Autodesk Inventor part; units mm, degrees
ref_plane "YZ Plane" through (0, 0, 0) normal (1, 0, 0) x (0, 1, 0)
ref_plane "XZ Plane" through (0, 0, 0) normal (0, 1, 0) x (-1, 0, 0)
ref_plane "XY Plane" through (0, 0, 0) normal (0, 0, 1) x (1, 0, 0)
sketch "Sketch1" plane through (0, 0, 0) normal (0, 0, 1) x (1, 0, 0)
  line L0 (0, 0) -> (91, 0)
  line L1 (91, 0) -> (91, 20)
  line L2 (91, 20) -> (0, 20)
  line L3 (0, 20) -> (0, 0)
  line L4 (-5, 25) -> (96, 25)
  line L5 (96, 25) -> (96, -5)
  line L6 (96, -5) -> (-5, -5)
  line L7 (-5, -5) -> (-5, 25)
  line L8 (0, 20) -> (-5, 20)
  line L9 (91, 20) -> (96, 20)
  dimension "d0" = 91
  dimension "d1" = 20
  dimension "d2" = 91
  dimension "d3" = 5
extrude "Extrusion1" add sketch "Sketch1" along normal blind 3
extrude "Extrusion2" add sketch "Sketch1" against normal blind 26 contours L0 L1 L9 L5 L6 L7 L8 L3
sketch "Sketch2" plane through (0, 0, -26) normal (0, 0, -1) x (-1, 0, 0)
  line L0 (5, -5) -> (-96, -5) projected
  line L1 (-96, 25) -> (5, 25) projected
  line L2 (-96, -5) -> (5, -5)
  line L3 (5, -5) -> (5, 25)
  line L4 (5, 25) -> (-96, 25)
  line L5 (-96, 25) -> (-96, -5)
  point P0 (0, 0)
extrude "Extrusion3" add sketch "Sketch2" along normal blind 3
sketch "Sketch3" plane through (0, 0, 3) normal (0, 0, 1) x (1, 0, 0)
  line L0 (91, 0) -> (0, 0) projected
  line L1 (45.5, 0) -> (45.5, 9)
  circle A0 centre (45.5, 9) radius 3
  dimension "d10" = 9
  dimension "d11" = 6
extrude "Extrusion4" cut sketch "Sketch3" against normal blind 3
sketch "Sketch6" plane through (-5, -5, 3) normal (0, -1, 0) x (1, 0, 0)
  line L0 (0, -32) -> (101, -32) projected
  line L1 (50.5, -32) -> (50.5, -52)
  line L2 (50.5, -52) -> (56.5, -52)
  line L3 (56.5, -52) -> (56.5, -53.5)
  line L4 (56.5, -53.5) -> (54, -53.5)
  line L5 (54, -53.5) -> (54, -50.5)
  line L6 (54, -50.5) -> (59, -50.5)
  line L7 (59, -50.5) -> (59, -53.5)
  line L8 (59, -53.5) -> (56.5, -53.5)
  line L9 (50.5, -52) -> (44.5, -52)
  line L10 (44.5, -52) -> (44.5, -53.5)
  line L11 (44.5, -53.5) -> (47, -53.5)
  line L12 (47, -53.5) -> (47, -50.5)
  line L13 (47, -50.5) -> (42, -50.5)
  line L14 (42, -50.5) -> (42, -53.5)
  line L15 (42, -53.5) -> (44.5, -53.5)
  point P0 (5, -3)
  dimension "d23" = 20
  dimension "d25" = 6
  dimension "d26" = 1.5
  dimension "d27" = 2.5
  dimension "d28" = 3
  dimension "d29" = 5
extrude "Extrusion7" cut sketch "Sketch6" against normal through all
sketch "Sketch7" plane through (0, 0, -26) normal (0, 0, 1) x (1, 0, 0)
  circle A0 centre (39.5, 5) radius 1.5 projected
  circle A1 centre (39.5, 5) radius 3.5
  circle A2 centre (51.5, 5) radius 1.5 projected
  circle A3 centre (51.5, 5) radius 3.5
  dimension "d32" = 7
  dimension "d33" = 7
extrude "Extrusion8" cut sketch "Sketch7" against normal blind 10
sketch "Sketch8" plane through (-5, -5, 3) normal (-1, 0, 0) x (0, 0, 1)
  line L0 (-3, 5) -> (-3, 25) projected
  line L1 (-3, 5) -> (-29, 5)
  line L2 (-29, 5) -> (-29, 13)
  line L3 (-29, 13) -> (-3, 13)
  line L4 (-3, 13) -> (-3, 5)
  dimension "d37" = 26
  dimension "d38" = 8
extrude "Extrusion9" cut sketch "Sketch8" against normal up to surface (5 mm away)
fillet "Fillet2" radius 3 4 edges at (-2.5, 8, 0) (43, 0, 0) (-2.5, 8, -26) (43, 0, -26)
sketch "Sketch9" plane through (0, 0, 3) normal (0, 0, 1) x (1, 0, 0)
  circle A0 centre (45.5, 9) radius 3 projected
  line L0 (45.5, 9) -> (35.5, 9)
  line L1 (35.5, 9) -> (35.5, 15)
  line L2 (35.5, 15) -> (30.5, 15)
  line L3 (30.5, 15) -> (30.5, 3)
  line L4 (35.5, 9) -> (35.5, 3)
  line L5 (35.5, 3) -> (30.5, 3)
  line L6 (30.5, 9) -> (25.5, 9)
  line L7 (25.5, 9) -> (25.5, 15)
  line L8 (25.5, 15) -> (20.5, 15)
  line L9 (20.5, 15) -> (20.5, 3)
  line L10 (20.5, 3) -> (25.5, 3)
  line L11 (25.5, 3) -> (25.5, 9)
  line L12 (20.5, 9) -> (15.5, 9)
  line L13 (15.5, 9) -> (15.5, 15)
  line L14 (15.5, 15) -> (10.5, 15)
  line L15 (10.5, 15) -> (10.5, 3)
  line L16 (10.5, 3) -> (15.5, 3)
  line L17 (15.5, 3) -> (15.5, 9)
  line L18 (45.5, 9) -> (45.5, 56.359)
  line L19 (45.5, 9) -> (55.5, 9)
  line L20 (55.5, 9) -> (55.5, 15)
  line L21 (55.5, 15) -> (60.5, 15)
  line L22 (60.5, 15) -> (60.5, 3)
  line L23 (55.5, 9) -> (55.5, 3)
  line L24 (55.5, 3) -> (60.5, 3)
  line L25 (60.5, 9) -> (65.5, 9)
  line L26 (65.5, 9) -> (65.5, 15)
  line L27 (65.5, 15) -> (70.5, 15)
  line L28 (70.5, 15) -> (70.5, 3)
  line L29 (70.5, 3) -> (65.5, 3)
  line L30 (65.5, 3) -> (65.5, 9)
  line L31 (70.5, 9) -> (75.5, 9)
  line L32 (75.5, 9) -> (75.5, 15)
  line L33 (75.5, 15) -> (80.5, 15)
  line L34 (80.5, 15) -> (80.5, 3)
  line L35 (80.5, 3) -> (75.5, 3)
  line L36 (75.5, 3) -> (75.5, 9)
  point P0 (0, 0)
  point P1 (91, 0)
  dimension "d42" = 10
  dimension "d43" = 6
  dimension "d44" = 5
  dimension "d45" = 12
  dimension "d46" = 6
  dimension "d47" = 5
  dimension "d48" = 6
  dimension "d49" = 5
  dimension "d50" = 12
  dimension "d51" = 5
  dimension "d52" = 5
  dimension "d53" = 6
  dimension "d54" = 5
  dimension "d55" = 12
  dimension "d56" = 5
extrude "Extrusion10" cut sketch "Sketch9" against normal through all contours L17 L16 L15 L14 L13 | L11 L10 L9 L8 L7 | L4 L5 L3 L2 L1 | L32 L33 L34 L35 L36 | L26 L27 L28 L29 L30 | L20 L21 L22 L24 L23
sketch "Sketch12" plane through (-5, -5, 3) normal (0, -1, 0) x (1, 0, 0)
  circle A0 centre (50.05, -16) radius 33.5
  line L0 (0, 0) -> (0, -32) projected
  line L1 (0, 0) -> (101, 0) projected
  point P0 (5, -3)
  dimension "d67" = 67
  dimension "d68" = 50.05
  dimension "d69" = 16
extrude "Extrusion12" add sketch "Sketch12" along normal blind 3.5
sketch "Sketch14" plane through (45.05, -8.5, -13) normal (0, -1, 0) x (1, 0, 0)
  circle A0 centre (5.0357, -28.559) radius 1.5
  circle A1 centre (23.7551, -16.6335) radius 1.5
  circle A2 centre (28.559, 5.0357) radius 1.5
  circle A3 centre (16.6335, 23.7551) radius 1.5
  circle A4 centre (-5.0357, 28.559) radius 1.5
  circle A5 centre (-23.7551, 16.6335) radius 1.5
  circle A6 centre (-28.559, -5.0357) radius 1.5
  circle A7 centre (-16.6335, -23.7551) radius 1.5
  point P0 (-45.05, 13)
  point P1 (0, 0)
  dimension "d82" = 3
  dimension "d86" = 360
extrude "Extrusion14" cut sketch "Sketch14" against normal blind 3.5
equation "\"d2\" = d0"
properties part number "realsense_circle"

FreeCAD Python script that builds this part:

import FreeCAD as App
import Part
import Sketcher
from FreeCAD import Vector


def edges_at(feature, points):
    """Names of the edges that pass closest to the given points."""
    edges = feature.Shape.Edges
    near = lambda p: min(range(len(edges)), key=lambda i: edges[i].distToShape(Part.Vertex(*p))[0])
    return sorted({f"Edge{near(p) + 1}" for p in points})

doc = App.newDocument("Part")
body = doc.addObject("PartDesign::Body", "Body")
body.AllowCompound = True

# Sketch on XY plane
sketch1 = body.newObject("Sketcher::SketchObject", "Sketch")
sketch1.AttachmentSupport = (doc.getObject("XY_Plane"), [""])
sketch1.MapMode = "FlatFace"
sketch1.addGeometry(Part.LineSegment(Vector(-5, -5, 0), Vector(96, -5, 0)), False)
sketch1.addGeometry(Part.LineSegment(Vector(96, -5, 0), Vector(96, 25, 0)), False)
sketch1.addGeometry(Part.LineSegment(Vector(96, 25, 0), Vector(-5, 25, 0)), False)
sketch1.addGeometry(Part.LineSegment(Vector(-5, 25, 0), Vector(-5, -5, 0)), False)
sketch1.addConstraint(Sketcher.Constraint("Coincident", 0, 2, 1, 1))
sketch1.addConstraint(Sketcher.Constraint("Coincident", 1, 2, 2, 1))
sketch1.addConstraint(Sketcher.Constraint("Coincident", 2, 2, 3, 1))
sketch1.addConstraint(Sketcher.Constraint("Coincident", 3, 2, 0, 1))
sketch1.addConstraint(Sketcher.Constraint("Horizontal", 0))
sketch1.addConstraint(Sketcher.Constraint("Vertical", 1))
sketch1.addConstraint(Sketcher.Constraint("Horizontal", 2))
sketch1.addConstraint(Sketcher.Constraint("Vertical", 3))
sketch1.addConstraint(Sketcher.Constraint("DistanceY", 0, 2, -1, 1, 5.0))
sketch1.addConstraint(Sketcher.Constraint("DistanceX", 2, 2, -1, 1, 5.0))
sketch1.addConstraint(Sketcher.Constraint("DistanceX", 0, 1, 0, 2, 101.0))
sketch1.addConstraint(Sketcher.Constraint("DistanceY", 1, 1, 1, 2, 30.0))
pad1 = body.newObject("PartDesign::Pad", "Pad")
pad1.Profile = sketch1
pad1.Length = 3

# Sketch on XY plane
sketch2 = body.newObject("Sketcher::SketchObject", "Sketch001")
sketch2.AttachmentSupport = (doc.getObject("XY_Plane"), [""])
sketch2.MapMode = "FlatFace"
sketch2.addGeometry(Part.LineSegment(Vector(91, 0, 0), Vector(0, 0, 0)), False)
sketch2.addGeometry(Part.LineSegment(Vector(0, 0, 0), Vector(0, 20, 0)), False)
sketch2.addGeometry(Part.LineSegment(Vector(0, 20, 0), Vector(-5, 20, 0)), False)
sketch2.addGeometry(Part.LineSegment(Vector(-5, 20, 0), Vector(-5, -5, 0)), False)
sketch2.addGeometry(Part.LineSegment(Vector(-5, -5, 0), Vector(96, -5, 0)), False)
sketch2.addGeometry(Part.LineSegment(Vector(96, -5, 0), Vector(96, 20, 0)), False)
sketch2.addGeometry(Part.LineSegment(Vector(96, 20, 0), Vector(91, 20, 0)), False)
sketch2.addGeometry(Part.LineSegment(Vector(91, 20, 0), Vector(91, 0, 0)), False)
sketch2.addConstraint(Sketcher.Constraint("Coincident", 0, 2, 1, 1))
sketch2.addConstraint(Sketcher.Constraint("Coincident", 1, 2, 2, 1))
sketch2.addConstraint(Sketcher.Constraint("Coincident", 2, 2, 3, 1))
sketch2.addConstraint(Sketcher.Constraint("Coincident", 3, 2, 4, 1))
sketch2.addConstraint(Sketcher.Constraint("Coincident", 4, 2, 5, 1))
sketch2.addConstraint(Sketcher.Constraint("Coincident", 5, 2, 6, 1))
sketch2.addConstraint(Sketcher.Constraint("Coincident", 6, 2, 7, 1))
sketch2.addConstraint(Sketcher.Constraint("Coincident", 7, 2, 0, 1))
sketch2.addConstraint(Sketcher.Constraint("Horizontal", 0))
sketch2.addConstraint(Sketcher.Constraint("Vertical", 1))
sketch2.addConstraint(Sketcher.Constraint("Horizontal", 2))
sketch2.addConstraint(Sketcher.Constraint("Vertical", 3))
sketch2.addConstraint(Sketcher.Constraint("Horizontal", 4))
sketch2.addConstraint(Sketcher.Constraint("Vertical", 5))
sketch2.addConstraint(Sketcher.Constraint("Horizontal", 6))
sketch2.addConstraint(Sketcher.Constraint("Vertical", 7))
sketch2.addConstraint(Sketcher.Constraint("Coincident", 0, 2, -1, 1))
sketch2.addConstraint(Sketcher.Constraint("Horizontal", 2, 2, 5, 2))
sketch2.addConstraint(Sketcher.Constraint("Equal", 2, 6))
sketch2.addConstraint(Sketcher.Constraint("DistanceX", 0, 2, 0, 1, 91.0))
sketch2.addConstraint(Sketcher.Constraint("DistanceX", 2, 2, 2, 1, 5.0))
sketch2.addConstraint(Sketcher.Constraint("DistanceY", 1, 1, 1, 2, 20.0))
sketch2.addConstraint(Sketcher.Constraint("DistanceY", 3, 2, -1, 1, 5.0))
pad2 = body.newObject("PartDesign::Pad", "Pad001")
pad2.Profile = sketch2
pad2.Length = 26
pad2.Reversed = True

# Sketch on XY plane
sketch3 = body.newObject("Sketcher::SketchObject", "Sketch002")
sketch3.AttachmentSupport = (doc.getObject("XY_Plane"), [""])
sketch3.MapMode = "FlatFace"
sketch3.AttachmentOffset = App.Placement(Vector(0, 0, -26), App.Rotation())
sketch3.addGeometry(Part.LineSegment(Vector(96, -5, 0), Vector(-5, -5, 0)), False)
sketch3.addGeometry(Part.LineSegment(Vector(-5, -5, 0), Vector(-5, 25, 0)), False)
sketch3.addGeometry(Part.LineSegment(Vector(-5, 25, 0), Vector(96, 25, 0)), False)
sketch3.addGeometry(Part.LineSegment(Vector(96, 25, 0), Vector(96, -5, 0)), False)
sketch3.addConstraint(Sketcher.Constraint("Coincident", 0, 2, 1, 1))
sketch3.addConstraint(Sketcher.Constraint("Coincident", 1, 2, 2, 1))
sketch3.addConstraint(Sketcher.Constraint("Coincident", 2, 2, 3, 1))
sketch3.addConstraint(Sketcher.Constraint("Coincident", 3, 2, 0, 1))
sketch3.addConstraint(Sketcher.Constraint("Horizontal", 0))
sketch3.addConstraint(Sketcher.Constraint("Vertical", 1))
sketch3.addConstraint(Sketcher.Constraint("Horizontal", 2))
sketch3.addConstraint(Sketcher.Constraint("Vertical", 3))
sketch3.addConstraint(Sketcher.Constraint("DistanceX", 0, 2, 0, 1, 101.0))
sketch3.addConstraint(Sketcher.Constraint("DistanceY", 1, 1, 1, 2, 30.0))
sketch3.addConstraint(Sketcher.Constraint("DistanceX", 0, 2, -1, 1, 5.0))
sketch3.addConstraint(Sketcher.Constraint("DistanceY", 0, 2, -1, 1, 5.0))
pad3 = body.newObject("PartDesign::Pad", "Pad002")
pad3.Profile = sketch3
pad3.Length = 3
pad3.Reversed = True

# Sketch on XY plane
sketch4 = body.newObject("Sketcher::SketchObject", "Sketch003")
sketch4.AttachmentSupport = (doc.getObject("XY_Plane"), [""])
sketch4.MapMode = "FlatFace"
sketch4.AttachmentOffset = App.Placement(Vector(0, 0, 3), App.Rotation())
sketch4.addGeometry(Part.Circle(Vector(45.5, 9, 0), Vector(0, 0, 1), 3), False)
sketch4.addConstraint(Sketcher.Constraint("Diameter", 0, 6.0))
sketch4.addConstraint(Sketcher.Constraint("DistanceY", -1, 1, 0, 3, 9.0))
sketch4.addConstraint(Sketcher.Constraint("DistanceX", -1, 1, 0, 3, 45.5))
pocket1 = body.newObject("PartDesign::Pocket", "Pocket")
pocket1.Profile = sketch4
pocket1.Length = 3

# Sketch on XZ plane
sketch5 = body.newObject("Sketcher::SketchObject", "Sketch004")
sketch5.AttachmentSupport = (doc.getObject("XZ_Plane"), [""])
sketch5.MapMode = "FlatFace"
sketch5.AttachmentOffset = App.Placement(Vector(0, 0, 5), App.Rotation())
sketch5.addGeometry(Part.LineSegment(Vector(49, -47.5, 0), Vector(49, -50.5, 0)), False)
sketch5.addGeometry(Part.LineSegment(Vector(49, -50.5, 0), Vector(54, -50.5, 0)), False)
sketch5.addGeometry(Part.LineSegment(Vector(54, -50.5, 0), Vector(54, -47.5, 0)), False)
sketch5.addGeometry(Part.LineSegment(Vector(54, -47.5, 0), Vector(49, -47.5, 0)), False)
sketch5.addGeometry(Part.LineSegment(Vector(42, -50.5, 0), Vector(42, -47.5, 0)), False)
sketch5.addGeometry(Part.LineSegment(Vector(42, -47.5, 0), Vector(37, -47.5, 0)), False)
sketch5.addGeometry(Part.LineSegment(Vector(37, -47.5, 0), Vector(37, -50.5, 0)), False)
sketch5.addGeometry(Part.LineSegment(Vector(37, -50.5, 0), Vector(42, -50.5, 0)), False)
sketch5.addConstraint(Sketcher.Constraint("Coincident", 0, 2, 1, 1))
sketch5.addConstraint(Sketcher.Constraint("Coincident", 1, 2, 2, 1))
sketch5.addConstraint(Sketcher.Constraint("Coincident", 2, 2, 3, 1))
sketch5.addConstraint(Sketcher.Constraint("Coincident", 3, 2, 0, 1))
sketch5.addConstraint(Sketcher.Constraint("Coincident", 4, 2, 5, 1))
sketch5.addConstraint(Sketcher.Constraint("Coincident", 5, 2, 6, 1))
sketch5.addConstraint(Sketcher.Constraint("Coincident", 6, 2, 7, 1))
sketch5.addConstraint(Sketcher.Constraint("Coincident", 7, 2, 4, 1))
sketch5.addConstraint(Sketcher.Constraint("Vertical", 0))
sketch5.addConstraint(Sketcher.Constraint("Horizontal", 1))
sketch5.addConstraint(Sketcher.Constraint("Vertical", 2))
sketch5.addConstraint(Sketcher.Constraint("Horizontal", 3))
sketch5.addConstraint(Sketcher.Constraint("Vertical", 4))
sketch5.addConstraint(Sketcher.Constraint("Horizontal", 5))
sketch5.addConstraint(Sketcher.Constraint("Vertical", 6))
sketch5.addConstraint(Sketcher.Constraint("Horizontal", 7))
sketch5.addConstraint(Sketcher.Constraint("Horizontal", 3, 2, 4, 2))
sketch5.addConstraint(Sketcher.Constraint("Horizontal", 1, 2, 6, 2))
sketch5.addConstraint(Sketcher.Constraint("Equal", 3, 5))
sketch5.addConstraint(Sketcher.Constraint("DistanceX", 1, 1, 1, 2, 5.0))
sketch5.addConstraint(Sketcher.Constraint("DistanceY", 0, 2, 0, 1, 3.0))
sketch5.addConstraint(Sketcher.Constraint("DistanceX", -1, 1, 0, 2, 49.0))
sketch5.addConstraint(Sketcher.Constraint("DistanceX", -1, 1, 4, 2, 42.0))
sketch5.addConstraint(Sketcher.Constraint("DistanceY", 0, 2, -1, 1, 50.5))
pocket2 = body.newObject("PartDesign::Pocket", "Pocket001")
pocket2.Profile = sketch5
pocket2.Type = "ThroughAll"

# Sketch on XY plane
sketch6 = body.newObject("Sketcher::SketchObject", "Sketch005")
sketch6.AttachmentSupport = (doc.getObject("XY_Plane"), [""])
sketch6.MapMode = "FlatFace"
sketch6.AttachmentOffset = App.Placement(Vector(0, 0, -26), App.Rotation())
sketch6.addGeometry(Part.Circle(Vector(39.5, 5, 0), Vector(0, 0, 1), 3.5), False)
sketch6.addGeometry(Part.Circle(Vector(39.5, 5, 0), Vector(0, 0, 1), 1.5), False)
sketch6.addGeometry(Part.Circle(Vector(51.5, 5, 0), Vector(0, 0, 1), 3.5), False)
sketch6.addGeometry(Part.Circle(Vector(51.5, 5, 0), Vector(0, 0, 1), 1.5), False)
sketch6.addConstraint(Sketcher.Constraint("Coincident", 1, 3, 0, 3))
sketch6.addConstraint(Sketcher.Constraint("Coincident", 3, 3, 2, 3))
sketch6.addConstraint(Sketcher.Constraint("Equal", 0, 2))
sketch6.addConstraint(Sketcher.Constraint("Equal", 1, 3))
sketch6.addConstraint(Sketcher.Constraint("Horizontal", 1, 3, 2, 3))
sketch6.addConstraint(Sketcher.Constraint("Diameter", 0, 7.0))
sketch6.addConstraint(Sketcher.Constraint("Diameter", 1, 3.0))
sketch6.addConstraint(Sketcher.Constraint("DistanceY", -1, 1, 0, 3, 5.0))
sketch6.addConstraint(Sketcher.Constraint("DistanceX", 0, 3, 2, 3, 12.0))
sketch6.addConstraint(Sketcher.Constraint("DistanceX", -1, 1, 0, 3, 39.5))
pocket3 = body.newObject("PartDesign::Pocket", "Pocket002")
pocket3.Profile = sketch6
pocket3.Length = 10

# Sketch on YZ plane
sketch7 = body.newObject("Sketcher::SketchObject", "Sketch006")
sketch7.AttachmentSupport = (doc.getObject("YZ_Plane"), [""])
sketch7.MapMode = "FlatFace"
sketch7.AttachmentOffset = App.Placement(Vector(0, 0, -5), App.Rotation())
sketch7.addGeometry(Part.LineSegment(Vector(0, -26, 0), Vector(0, 0, 0)), False)
sketch7.addGeometry(Part.LineSegment(Vector(0, 0, 0), Vector(8, 0, 0)), False)
sketch7.addGeometry(Part.LineSegment(Vector(8, 0, 0), Vector(8, -26, 0)), False)
sketch7.addGeometry(Part.LineSegment(Vector(8, -26, 0), Vector(0, -26, 0)), False)
sketch7.addConstraint(Sketcher.Constraint("Coincident", 0, 2, 1, 1))
sketch7.addConstraint(Sketcher.Constraint("Coincident", 1, 2, 2, 1))
sketch7.addConstraint(Sketcher.Constraint("Coincident", 2, 2, 3, 1))
sketch7.addConstraint(Sketcher.Constraint("Coincident", 3, 2, 0, 1))
sketch7.addConstraint(Sketcher.Constraint("Vertical", 0))
sketch7.addConstraint(Sketcher.Constraint("Horizontal", 1))
sketch7.addConstraint(Sketcher.Constraint("Vertical", 2))
sketch7.addConstraint(Sketcher.Constraint("Horizontal", 3))
sketch7.addConstraint(Sketcher.Constraint("Coincident", 0, 2, -1, 1))
sketch7.addConstraint(Sketcher.Constraint("DistanceX", 1, 1, 1, 2, 8.0))
sketch7.addConstraint(Sketcher.Constraint("DistanceY", 0, 1, 0, 2, 26.0))
pocket4 = body.newObject("PartDesign::Pocket", "Pocket003")
pocket4.Profile = sketch7
pocket4.Length = 5
pocket4.Reversed = True
doc.recompute()

fillet = body.newObject("PartDesign::Fillet", "Fillet")
fillet.Base = (pocket4, edges_at(pocket4, [
    (-2.5, 8, 0),
    (43, 0, 0),
    (-2.5, 8, -26),
    (43, 0, -26),
]))
fillet.Radius = 3

# Sketch on XY plane
sketch8 = body.newObject("Sketcher::SketchObject", "Sketch007")
sketch8.AttachmentSupport = (doc.getObject("XY_Plane"), [""])
sketch8.MapMode = "FlatFace"
sketch8.AttachmentOffset = App.Placement(Vector(0, 0, 3), App.Rotation())
sketch8.addGeometry(Part.LineSegment(Vector(16, 3, 0), Vector(16, 15, 0)), False)
sketch8.addGeometry(Part.LineSegment(Vector(16, 15, 0), Vector(10, 15, 0)), False)
sketch8.addGeometry(Part.LineSegment(Vector(10, 15, 0), Vector(10, 3, 0)), False)
sketch8.addGeometry(Part.LineSegment(Vector(10, 3, 0), Vector(16, 3, 0)), False)
sketch8.addGeometry(Part.LineSegment(Vector(26, 3, 0), Vector(26, 15, 0)), False)
sketch8.addGeometry(Part.LineSegment(Vector(26, 15, 0), Vector(20, 15, 0)), False)
sketch8.addGeometry(Part.LineSegment(Vector(20, 15, 0), Vector(20, 3, 0)), False)
sketch8.addGeometry(Part.LineSegment(Vector(20, 3, 0), Vector(26, 3, 0)), False)
sketch8.addGeometry(Part.LineSegment(Vector(36, 3, 0), Vector(36, 15, 0)), False)
sketch8.addGeometry(Part.LineSegment(Vector(36, 15, 0), Vector(30, 15, 0)), False)
sketch8.addGeometry(Part.LineSegment(Vector(30, 15, 0), Vector(30, 3, 0)), False)
sketch8.addGeometry(Part.LineSegment(Vector(30, 3, 0), Vector(36, 3, 0)), False)
sketch8.addGeometry(Part.LineSegment(Vector(76, 15, 0), Vector(76, 3, 0)), False)
sketch8.addGeometry(Part.LineSegment(Vector(76, 3, 0), Vector(80, 3, 0)), False)
sketch8.addGeometry(Part.LineSegment(Vector(80, 3, 0), Vector(80, 15, 0)), False)
sketch8.addGeometry(Part.LineSegment(Vector(80, 15, 0), Vector(76, 15, 0)), False)
sketch8.addGeometry(Part.LineSegment(Vector(66, 15, 0), Vector(66, 3, 0)), False)
sketch8.addGeometry(Part.LineSegment(Vector(66, 3, 0), Vector(70, 3, 0)), False)
sketch8.addGeometry(Part.LineSegment(Vector(70, 3, 0), Vector(70, 15, 0)), False)
sketch8.addGeometry(Part.LineSegment(Vector(70, 15, 0), Vector(66, 15, 0)), False)
sketch8.addGeometry(Part.LineSegment(Vector(56, 15, 0), Vector(56, 3, 0)), False)
sketch8.addGeometry(Part.LineSegment(Vector(56, 3, 0), Vector(60, 3, 0)), False)
sketch8.addGeometry(Part.LineSegment(Vector(60, 3, 0), Vector(60, 15, 0)), False)
sketch8.addGeometry(Part.LineSegment(Vector(60, 15, 0), Vector(56, 15, 0)), False)
sketch8.addConstraint(Sketcher.Constraint("Coincident", 0, 2, 1, 1))
sketch8.addConstraint(Sketcher.Constraint("Coincident", 1, 2, 2, 1))
sketch8.addConstraint(Sketcher.Constraint("Coincident", 2, 2, 3, 1))
sketch8.addConstraint(Sketcher.Constraint("Coincident", 3, 2, 0, 1))
sketch8.addConstraint(Sketcher.Constraint("Coincident", 4, 2, 5, 1))
sketch8.addConstraint(Sketcher.Constraint("Coincident", 5, 2, 6, 1))
sketch8.addConstraint(Sketcher.Constraint("Coincident", 6, 2, 7, 1))
sketch8.addConstraint(Sketcher.Constraint("Coincident", 7, 2, 4, 1))
sketch8.addConstraint(Sketcher.Constraint("Coincident", 8, 2, 9, 1))
sketch8.addConstraint(Sketcher.Constraint("Coincident", 9, 2, 10, 1))
sketch8.addConstraint(Sketcher.Constraint("Coincident", 10, 2, 11, 1))
sketch8.addConstraint(Sketcher.Constraint("Coincident", 11, 2, 8, 1))
sketch8.addConstraint(Sketcher.Constraint("Coincident", 12, 2, 13, 1))
sketch8.addConstraint(Sketcher.Constraint("Coincident", 13, 2, 14, 1))
sketch8.addConstraint(Sketcher.Constraint("Coincident", 14, 2, 15, 1))
sketch8.addConstraint(Sketcher.Constraint("Coincident", 15, 2, 12, 1))
sketch8.addConstraint(Sketcher.Constraint("Coincident", 16, 2, 17, 1))
sketch8.addConstraint(Sketcher.Constraint("Coincident", 17, 2, 18, 1))
sketch8.addConstraint(Sketcher.Constraint("Coincident", 18, 2, 19, 1))
sketch8.addConstraint(Sketcher.Constraint("Coincident", 19, 2, 16, 1))
sketch8.addConstraint(Sketcher.Constraint("Coincident", 20, 2, 21, 1))
sketch8.addConstraint(Sketcher.Constraint("Coincident", 21, 2, 22, 1))
sketch8.addConstraint(Sketcher.Constraint("Coincident", 22, 2, 23, 1))
sketch8.addConstraint(Sketcher.Constraint("Coincident", 23, 2, 20, 1))
sketch8.addConstraint(Sketcher.Constraint("Vertical", 0))
sketch8.addConstraint(Sketcher.Constraint("Horizontal", 1))
sketch8.addConstraint(Sketcher.Constraint("Vertical", 2))
sketch8.addConstraint(Sketcher.Constraint("Horizontal", 3))
sketch8.addConstraint(Sketcher.Constraint("Vertical", 4))
sketch8.addConstraint(Sketcher.Constraint("Horizontal", 5))
sketch8.addConstraint(Sketcher.Constraint("Vertical", 6))
sketch8.addConstraint(Sketcher.Constraint("Horizontal", 7))
sketch8.addConstraint(Sketcher.Constraint("Vertical", 8))
sketch8.addConstraint(Sketcher.Constraint("Horizontal", 9))
sketch8.addConstraint(Sketcher.Constraint("Vertical", 10))
sketch8.addConstraint(Sketcher.Constraint("Horizontal", 11))
sketch8.addConstraint(Sketcher.Constraint("Vertical", 12))
sketch8.addConstraint(Sketcher.Constraint("Horizontal", 13))
sketch8.addConstraint(Sketcher.Constraint("Vertical", 14))
sketch8.addConstraint(Sketcher.Constraint("Horizontal", 15))
sketch8.addConstraint(Sketcher.Constraint("Vertical", 16))
sketch8.addConstraint(Sketcher.Constraint("Horizontal", 17))
sketch8.addConstraint(Sketcher.Constraint("Vertical", 18))
sketch8.addConstraint(Sketcher.Constraint("Horizontal", 19))
sketch8.addConstraint(Sketcher.Constraint("Vertical", 20))
sketch8.addConstraint(Sketcher.Constraint("Horizontal", 21))
sketch8.addConstraint(Sketcher.Constraint("Vertical", 22))
sketch8.addConstraint(Sketcher.Constraint("Horizontal", 23))
sketch8.addConstraint(Sketcher.Constraint("Horizontal", 1, 2, 4, 2))
sketch8.addConstraint(Sketcher.Constraint("Horizontal", 3, 2, 6, 2))
sketch8.addConstraint(Sketcher.Constraint("Horizontal", 5, 2, 8, 2))
sketch8.addConstraint(Sketcher.Constraint("Horizontal", 7, 2, 10, 2))
sketch8.addConstraint(Sketcher.Constraint("Horizontal", 11, 2, 12, 2))
sketch8.addConstraint(Sketcher.Constraint("Horizontal", 9, 2, 14, 2))
sketch8.addConstraint(Sketcher.Constraint("Horizontal", 13, 2, 16, 2))
sketch8.addConstraint(Sketcher.Constraint("Horizontal", 15, 2, 18, 2))
sketch8.addConstraint(Sketcher.Constraint("Horizontal", 17, 2, 20, 2))
sketch8.addConstraint(Sketcher.Constraint("Horizontal", 19, 2, 22, 2))
sketch8.addConstraint(Sketcher.Constraint("Equal", 3, 5))
sketch8.addConstraint(Sketcher.Constraint("Equal", 7, 9))
sketch8.addConstraint(Sketcher.Constraint("Equal", 11, 13))
sketch8.addConstraint(Sketcher.Constraint("Equal", 15, 17))
sketch8.addConstraint(Sketcher.Constraint("Equal", 19, 21))
sketch8.addConstraint(Sketcher.Constraint("DistanceX", 1, 2, 1, 1, 5.0))
sketch8.addConstraint(Sketcher.Constraint("DistanceY", 0, 1, 0, 2, 12.0))
sketch8.addConstraint(Sketcher.Constraint("DistanceX", 0, 2, 4, 2, 10.0))
sketch8.addConstraint(Sketcher.Constraint("DistanceX", 4, 2, 8, 2, 10.0))
sketch8.addConstraint(Sketcher.Constraint("DistanceX", 16, 2, 12, 2, 10.0))
sketch8.addConstraint(Sketcher.Constraint("DistanceX", 20, 2, 16, 2, 10.0))
sketch8.addConstraint(Sketcher.Constraint("DistanceY", -1, 1, 0, 2, 15.0))
sketch8.addConstraint(Sketcher.Constraint("DistanceX", 11, 2, 12, 2, 40.0))
sketch8.addConstraint(Sketcher.Constraint("DistanceX", -1, 1, 0, 2, 15.5))
pocket5 = body.newObject("PartDesign::Pocket", "Pocket004")
pocket5.Profile = sketch8
pocket5.Type = "ThroughAll"

# Sketch on XZ plane
sketch9 = body.newObject("Sketcher::SketchObject", "Sketch008")
sketch9.AttachmentSupport = (doc.getObject("XZ_Plane"), [""])
sketch9.MapMode = "FlatFace"
sketch9.AttachmentOffset = App.Placement(Vector(0, 0, 5), App.Rotation())
sketch9.addGeometry(Part.Circle(Vector(45, -13, 0), Vector(0, 0, 1), 34), False)
sketch9.addConstraint(Sketcher.Constraint("Diameter", 0, 67.0))
sketch9.addConstraint(Sketcher.Constraint("DistanceY", 0, 3, -1, 1, 13.0))
sketch9.addConstraint(Sketcher.Constraint("DistanceX", -1, 1, 0, 3, 45.05))
pad4 = body.newObject("PartDesign::Pad", "Pad003")
pad4.Profile = sketch9
pad4.Length = 3.5

# Sketch on XZ plane
sketch10 = body.newObject("Sketcher::SketchObject", "Sketch009")
sketch10.AttachmentSupport = (doc.getObject("XZ_Plane"), [""])
sketch10.MapMode = "FlatFace"
sketch10.AttachmentOffset = App.Placement(Vector(0, 0, 8.5), App.Rotation())
sketch10.addGeometry(Part.Circle(Vector(50.1, -41.6, 0), Vector(0, 0, 1), 1.5), False)
sketch10.addGeometry(Part.Circle(Vector(68.8, -29.6, 0), Vector(0, 0, 1), 1.5), False)
sketch10.addGeometry(Part.Circle(Vector(73.6, -8, 0), Vector(0, 0, 1), 1.5), False)
sketch10.addGeometry(Part.Circle(Vector(61.7, 10.8, 0), Vector(0, 0, 1), 1.5), False)
sketch10.addGeometry(Part.Circle(Vector(40, 15.6, 0), Vector(0, 0, 1), 1.5), False)
sketch10.addGeometry(Part.Circle(Vector(21.3, 3.6, 0), Vector(0, 0, 1), 1.5), False)
sketch10.addGeometry(Part.Circle(Vector(16.5, -18, 0), Vector(0, 0, 1), 1.5), False)
sketch10.addGeometry(Part.Circle(Vector(28.4, -36.8, 0), Vector(0, 0, 1), 1.5), False)
sketch10.addConstraint(Sketcher.Constraint("Equal", 0, 1))
sketch10.addConstraint(Sketcher.Constraint("Equal", 1, 2))
sketch10.addConstraint(Sketcher.Constraint("Equal", 2, 3))
sketch10.addConstraint(Sketcher.Constraint("Equal", 3, 4))
sketch10.addConstraint(Sketcher.Constraint("Equal", 4, 5))
sketch10.addConstraint(Sketcher.Constraint("Equal", 5, 6))
sketch10.addConstraint(Sketcher.Constraint("Equal", 6, 7))
sketch10.addConstraint(Sketcher.Constraint("Diameter", 0, 3.0))
sketch10.addConstraint(Sketcher.Constraint("DistanceY", 0, 3, -1, 1, 41.559))
sketch10.addConstraint(Sketcher.Constraint("DistanceX", -1, 1, 1, 3, 68.805))
sketch10.addConstraint(Sketcher.Constraint("DistanceX", -1, 1, 2, 3, 73.609))
sketch10.addConstraint(Sketcher.Constraint("DistanceY", -1, 1, 3, 3, 10.755))
sketch10.addConstraint(Sketcher.Constraint("DistanceY", -1, 1, 4, 3, 15.559))
sketch10.addConstraint(Sketcher.Constraint("DistanceX", -1, 1, 5, 3, 21.295))
sketch10.addConstraint(Sketcher.Constraint("DistanceX", -1, 1, 6, 3, 16.491))
sketch10.addConstraint(Sketcher.Constraint("DistanceY", 7, 3, -1, 1, 36.755))
sketch10.addConstraint(Sketcher.Constraint("DistanceY", 1, 3, 5, 3, 33.267))
sketch10.addConstraint(Sketcher.Constraint("DistanceX", -1, 1, 0, 3, 50.0857))
sketch10.addConstraint(Sketcher.Constraint("DistanceY", 1, 3, -1, 1, 29.6335))
sketch10.addConstraint(Sketcher.Constraint("DistanceY", 2, 3, -1, 1, 7.9643))
sketch10.addConstraint(Sketcher.Constraint("DistanceX", -1, 1, 3, 3, 61.6835))
sketch10.addConstraint(Sketcher.Constraint("DistanceX", -1, 1, 4, 3, 40.0143))
sketch10.addConstraint(Sketcher.Constraint("DistanceY", 6, 3, -1, 1, 18.0357))
sketch10.addConstraint(Sketcher.Constraint("DistanceX", -1, 1, 7, 3, 28.4165))
pocket6 = body.newObject("PartDesign::Pocket", "Pocket005")
pocket6.Profile = sketch10
pocket6.Length = 3.5

doc.recompute()
